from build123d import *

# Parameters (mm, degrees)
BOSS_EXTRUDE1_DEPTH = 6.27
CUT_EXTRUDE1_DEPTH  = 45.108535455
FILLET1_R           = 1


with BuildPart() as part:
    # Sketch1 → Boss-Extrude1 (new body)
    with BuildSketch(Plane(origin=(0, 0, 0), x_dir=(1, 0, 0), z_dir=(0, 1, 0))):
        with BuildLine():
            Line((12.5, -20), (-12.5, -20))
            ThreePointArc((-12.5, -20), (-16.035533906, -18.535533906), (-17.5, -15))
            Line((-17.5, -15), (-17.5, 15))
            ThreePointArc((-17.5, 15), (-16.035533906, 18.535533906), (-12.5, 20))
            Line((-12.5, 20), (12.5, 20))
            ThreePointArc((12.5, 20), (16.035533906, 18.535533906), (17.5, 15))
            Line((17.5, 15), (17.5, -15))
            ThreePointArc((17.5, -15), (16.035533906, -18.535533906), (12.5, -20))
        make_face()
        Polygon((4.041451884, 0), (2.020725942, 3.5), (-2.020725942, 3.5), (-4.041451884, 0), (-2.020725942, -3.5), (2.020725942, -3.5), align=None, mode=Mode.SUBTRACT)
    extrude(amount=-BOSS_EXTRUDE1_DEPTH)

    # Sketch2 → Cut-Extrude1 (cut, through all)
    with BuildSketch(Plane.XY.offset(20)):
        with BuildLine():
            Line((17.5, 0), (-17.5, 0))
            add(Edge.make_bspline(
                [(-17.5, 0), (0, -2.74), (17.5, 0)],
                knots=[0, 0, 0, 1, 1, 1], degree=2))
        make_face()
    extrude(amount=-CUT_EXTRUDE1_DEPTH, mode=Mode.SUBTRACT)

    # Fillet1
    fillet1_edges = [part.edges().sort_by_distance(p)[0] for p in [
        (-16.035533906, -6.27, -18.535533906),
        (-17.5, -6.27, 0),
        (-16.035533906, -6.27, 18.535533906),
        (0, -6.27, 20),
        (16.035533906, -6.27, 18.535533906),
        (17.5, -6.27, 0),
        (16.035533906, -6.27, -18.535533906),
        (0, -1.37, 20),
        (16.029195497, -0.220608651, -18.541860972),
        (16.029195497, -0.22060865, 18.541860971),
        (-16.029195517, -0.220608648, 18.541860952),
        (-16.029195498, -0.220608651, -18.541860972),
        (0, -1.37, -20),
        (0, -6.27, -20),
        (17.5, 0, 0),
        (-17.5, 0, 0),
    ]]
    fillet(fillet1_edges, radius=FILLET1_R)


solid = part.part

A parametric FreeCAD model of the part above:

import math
import FreeCAD as App
import Part
import Sketcher

V = App.Vector
Q = App.Units.Quantity


def edges_at(feature, points):
    """Names of the edges that pass closest to the given points."""
    edges = feature.Shape.Edges
    near = lambda p: min(range(len(edges)), key=lambda i: edges[i].distToShape(Part.Vertex(*p))[0])
    return sorted({f"Edge{near(p) + 1}" for p in points})


def add_polygon(sketch, points):
    """Adds a closed chain of lines whose ends are joined by coincident constraints."""
    first, n = sketch.GeometryCount, len(points)
    for a, b in zip(points, points[1:] + points[:1]):
        sketch.addGeometry(Part.LineSegment(App.Vector(*a, 0), App.Vector(*b, 0)), False)
    for i in range(n):
        sketch.addConstraint(Sketcher.Constraint("Coincident", first + i, 2, first + (i + 1) % n, 1))

doc = App.newDocument("Part")
body = doc.addObject("PartDesign::Body", "Body")

# Sketch on XZ plane
sketch1 = doc.addObject("Sketcher::SketchObject", "Sketch")
body.addObject(sketch1)
sketch1.AttachmentSupport = (doc.XZ_Plane, [""])
sketch1.MapMode = "FlatFace"
sketch1.addGeometry(Part.LineSegment(V(-12.5, 20, 0), V(12.5, 20, 0)), False)  # 0
sketch1.addGeometry(Part.ArcOfCircle(Part.Circle(V(12.5, 15, 0), V(0, 0, 1), 5), math.radians(0), math.radians(90)), False)  # 1
sketch1.addGeometry(Part.LineSegment(V(17.5, 15, 0), V(17.5, -15, 0)), False)  # 2
sketch1.addGeometry(Part.ArcOfCircle(Part.Circle(V(12.5, -15, 0), V(0, 0, 1), 5), math.radians(-90), math.radians(0)), False)  # 3
sketch1.addGeometry(Part.LineSegment(V(12.5, -20, 0), V(-12.5, -20, 0)), False)  # 4
sketch1.addGeometry(Part.ArcOfCircle(Part.Circle(V(-12.5, -15, 0), V(0, 0, 1), 5), math.radians(180), math.radians(270)), False)  # 5
sketch1.addGeometry(Part.LineSegment(V(-17.5, -15, 0), V(-17.5, 15, 0)), False)  # 6
sketch1.addGeometry(Part.ArcOfCircle(Part.Circle(V(-12.5, 15, 0), V(0, 0, 1), 5), math.radians(90), math.radians(180)), False)  # 7
add_polygon(sketch1, [(4, 0), (2, 3.5), (-2, 3.5), (-4, 0), (-2, -3.5), (2, -3.5)])  # lines 8-13
sketch1.addConstraint([
    Sketcher.Constraint("Tangent", 0, 2, 1, 2),
    Sketcher.Constraint("Tangent", 1, 1, 2, 1),
    Sketcher.Constraint("Tangent", 2, 2, 3, 2),
    Sketcher.Constraint("Tangent", 3, 1, 4, 1),
    Sketcher.Constraint("Tangent", 4, 2, 5, 2),
    Sketcher.Constraint("Tangent", 5, 1, 6, 1),
    Sketcher.Constraint("Tangent", 6, 2, 7, 2),
    Sketcher.Constraint("Tangent", 7, 1, 0, 1),
    Sketcher.Constraint("Horizontal", 0),
    Sketcher.Constraint("Vertical", 2),
    Sketcher.Constraint("Horizontal", 4),
    Sketcher.Constraint("Vertical", 6),
    Sketcher.Constraint("Horizontal", 9),
    Sketcher.Constraint("Horizontal", 12),
    Sketcher.Constraint("Equal", 1, 3),
    Sketcher.Constraint("Equal", 3, 5),
    Sketcher.Constraint("Equal", 5, 7),
    Sketcher.Constraint("Symmetric", 1, 3, 5, 3, -1, 1),
    Sketcher.Constraint("Symmetric", 8, 2, 11, 2, -1, 1),
    Sketcher.Constraint("Symmetric", 10, 2, 13, 2, -1, 1),
    Sketcher.Constraint("PointOnObject", 10, 2, -1),
    Sketcher.Constraint("Parallel", 10, 13),
    Sketcher.Constraint("Vertical", 9, 2, 11, 2),
    Sketcher.Constraint("Radius", 1, 5.0),
    Sketcher.Constraint("DistanceX", 0, 1, 0, 2, 25.0),
    Sketcher.Constraint("DistanceY", 2, 2, 2, 1, 30.0),
    Sketcher.Constraint("Angle", 8, Q("120 deg")),
    Sketcher.Constraint("DistanceY", 11, 2, 9, 2, 7.0),
    Sketcher.Constraint("DistanceX", 9, 2, 9, 1, 4.041452),
])
pad1 = doc.addObject("PartDesign::Pad", "Pad")
body.addObject(pad1)
pad1.Profile = sketch1
pad1.Length = 6.27

# Sketch on XY plane
sketch2 = doc.addObject("Sketcher::SketchObject", "Sketch001")
body.addObject(sketch2)
sketch2.AttachmentSupport = (doc.XY_Plane, [""])
sketch2.MapMode = "FlatFace"
sketch2.AttachmentOffset = App.Placement(V(0, 0, 20), App.Rotation())
sketch2.addGeometry([
    Part.LineSegment(V(17.5, 0, 0), V(-17.5, 0, 0)),
    Part.BSplineCurve([V(-17.5, 0, 0), V(0, -2.74, 0), V(17.5, 0, 0)], [3, 3], [0, 1], False, 2, [1, 1, 1], False),
], False)
sketch2.addConstraint([
    Sketcher.Constraint("Block", 1),
    Sketcher.Constraint("Coincident", 0, 1, 1, 2),
    Sketcher.Constraint("Coincident", 1, 1, 0, 2),
])
pocket1 = doc.addObject("PartDesign::Pocket", "Pocket")
body.addObject(pocket1)
pocket1.Profile = sketch2
pocket1.Type = "ThroughAll"
doc.recompute()

fillet = doc.addObject("PartDesign::Fillet", "Fillet")
body.addObject(fillet)
fillet.Base = (pocket1, edges_at(pocket1, [
    (-16.036, -6.27, -18.536),
    (-17.5, -6.27, 0),
    (-16.036, -6.27, 18.536),
    (0, -6.27, 20),
    (16.036, -6.27, 18.536),
    (17.5, -6.27, 0),
    (16.036, -6.27, -18.536),
    (0, -1.37, 20),
    (16.029, -0.221, -18.542),
    (16.029, -0.221, 18.542),
    (-16.029, -0.221, 18.542),
    (-16.029, -0.221, -18.542),
    (0, -1.37, -20),
    (0, -6.27, -20),
    (17.5, 0, 0),
    (-17.5, 0, 0),
]))
fillet.Radius = 1

doc.recompute()
